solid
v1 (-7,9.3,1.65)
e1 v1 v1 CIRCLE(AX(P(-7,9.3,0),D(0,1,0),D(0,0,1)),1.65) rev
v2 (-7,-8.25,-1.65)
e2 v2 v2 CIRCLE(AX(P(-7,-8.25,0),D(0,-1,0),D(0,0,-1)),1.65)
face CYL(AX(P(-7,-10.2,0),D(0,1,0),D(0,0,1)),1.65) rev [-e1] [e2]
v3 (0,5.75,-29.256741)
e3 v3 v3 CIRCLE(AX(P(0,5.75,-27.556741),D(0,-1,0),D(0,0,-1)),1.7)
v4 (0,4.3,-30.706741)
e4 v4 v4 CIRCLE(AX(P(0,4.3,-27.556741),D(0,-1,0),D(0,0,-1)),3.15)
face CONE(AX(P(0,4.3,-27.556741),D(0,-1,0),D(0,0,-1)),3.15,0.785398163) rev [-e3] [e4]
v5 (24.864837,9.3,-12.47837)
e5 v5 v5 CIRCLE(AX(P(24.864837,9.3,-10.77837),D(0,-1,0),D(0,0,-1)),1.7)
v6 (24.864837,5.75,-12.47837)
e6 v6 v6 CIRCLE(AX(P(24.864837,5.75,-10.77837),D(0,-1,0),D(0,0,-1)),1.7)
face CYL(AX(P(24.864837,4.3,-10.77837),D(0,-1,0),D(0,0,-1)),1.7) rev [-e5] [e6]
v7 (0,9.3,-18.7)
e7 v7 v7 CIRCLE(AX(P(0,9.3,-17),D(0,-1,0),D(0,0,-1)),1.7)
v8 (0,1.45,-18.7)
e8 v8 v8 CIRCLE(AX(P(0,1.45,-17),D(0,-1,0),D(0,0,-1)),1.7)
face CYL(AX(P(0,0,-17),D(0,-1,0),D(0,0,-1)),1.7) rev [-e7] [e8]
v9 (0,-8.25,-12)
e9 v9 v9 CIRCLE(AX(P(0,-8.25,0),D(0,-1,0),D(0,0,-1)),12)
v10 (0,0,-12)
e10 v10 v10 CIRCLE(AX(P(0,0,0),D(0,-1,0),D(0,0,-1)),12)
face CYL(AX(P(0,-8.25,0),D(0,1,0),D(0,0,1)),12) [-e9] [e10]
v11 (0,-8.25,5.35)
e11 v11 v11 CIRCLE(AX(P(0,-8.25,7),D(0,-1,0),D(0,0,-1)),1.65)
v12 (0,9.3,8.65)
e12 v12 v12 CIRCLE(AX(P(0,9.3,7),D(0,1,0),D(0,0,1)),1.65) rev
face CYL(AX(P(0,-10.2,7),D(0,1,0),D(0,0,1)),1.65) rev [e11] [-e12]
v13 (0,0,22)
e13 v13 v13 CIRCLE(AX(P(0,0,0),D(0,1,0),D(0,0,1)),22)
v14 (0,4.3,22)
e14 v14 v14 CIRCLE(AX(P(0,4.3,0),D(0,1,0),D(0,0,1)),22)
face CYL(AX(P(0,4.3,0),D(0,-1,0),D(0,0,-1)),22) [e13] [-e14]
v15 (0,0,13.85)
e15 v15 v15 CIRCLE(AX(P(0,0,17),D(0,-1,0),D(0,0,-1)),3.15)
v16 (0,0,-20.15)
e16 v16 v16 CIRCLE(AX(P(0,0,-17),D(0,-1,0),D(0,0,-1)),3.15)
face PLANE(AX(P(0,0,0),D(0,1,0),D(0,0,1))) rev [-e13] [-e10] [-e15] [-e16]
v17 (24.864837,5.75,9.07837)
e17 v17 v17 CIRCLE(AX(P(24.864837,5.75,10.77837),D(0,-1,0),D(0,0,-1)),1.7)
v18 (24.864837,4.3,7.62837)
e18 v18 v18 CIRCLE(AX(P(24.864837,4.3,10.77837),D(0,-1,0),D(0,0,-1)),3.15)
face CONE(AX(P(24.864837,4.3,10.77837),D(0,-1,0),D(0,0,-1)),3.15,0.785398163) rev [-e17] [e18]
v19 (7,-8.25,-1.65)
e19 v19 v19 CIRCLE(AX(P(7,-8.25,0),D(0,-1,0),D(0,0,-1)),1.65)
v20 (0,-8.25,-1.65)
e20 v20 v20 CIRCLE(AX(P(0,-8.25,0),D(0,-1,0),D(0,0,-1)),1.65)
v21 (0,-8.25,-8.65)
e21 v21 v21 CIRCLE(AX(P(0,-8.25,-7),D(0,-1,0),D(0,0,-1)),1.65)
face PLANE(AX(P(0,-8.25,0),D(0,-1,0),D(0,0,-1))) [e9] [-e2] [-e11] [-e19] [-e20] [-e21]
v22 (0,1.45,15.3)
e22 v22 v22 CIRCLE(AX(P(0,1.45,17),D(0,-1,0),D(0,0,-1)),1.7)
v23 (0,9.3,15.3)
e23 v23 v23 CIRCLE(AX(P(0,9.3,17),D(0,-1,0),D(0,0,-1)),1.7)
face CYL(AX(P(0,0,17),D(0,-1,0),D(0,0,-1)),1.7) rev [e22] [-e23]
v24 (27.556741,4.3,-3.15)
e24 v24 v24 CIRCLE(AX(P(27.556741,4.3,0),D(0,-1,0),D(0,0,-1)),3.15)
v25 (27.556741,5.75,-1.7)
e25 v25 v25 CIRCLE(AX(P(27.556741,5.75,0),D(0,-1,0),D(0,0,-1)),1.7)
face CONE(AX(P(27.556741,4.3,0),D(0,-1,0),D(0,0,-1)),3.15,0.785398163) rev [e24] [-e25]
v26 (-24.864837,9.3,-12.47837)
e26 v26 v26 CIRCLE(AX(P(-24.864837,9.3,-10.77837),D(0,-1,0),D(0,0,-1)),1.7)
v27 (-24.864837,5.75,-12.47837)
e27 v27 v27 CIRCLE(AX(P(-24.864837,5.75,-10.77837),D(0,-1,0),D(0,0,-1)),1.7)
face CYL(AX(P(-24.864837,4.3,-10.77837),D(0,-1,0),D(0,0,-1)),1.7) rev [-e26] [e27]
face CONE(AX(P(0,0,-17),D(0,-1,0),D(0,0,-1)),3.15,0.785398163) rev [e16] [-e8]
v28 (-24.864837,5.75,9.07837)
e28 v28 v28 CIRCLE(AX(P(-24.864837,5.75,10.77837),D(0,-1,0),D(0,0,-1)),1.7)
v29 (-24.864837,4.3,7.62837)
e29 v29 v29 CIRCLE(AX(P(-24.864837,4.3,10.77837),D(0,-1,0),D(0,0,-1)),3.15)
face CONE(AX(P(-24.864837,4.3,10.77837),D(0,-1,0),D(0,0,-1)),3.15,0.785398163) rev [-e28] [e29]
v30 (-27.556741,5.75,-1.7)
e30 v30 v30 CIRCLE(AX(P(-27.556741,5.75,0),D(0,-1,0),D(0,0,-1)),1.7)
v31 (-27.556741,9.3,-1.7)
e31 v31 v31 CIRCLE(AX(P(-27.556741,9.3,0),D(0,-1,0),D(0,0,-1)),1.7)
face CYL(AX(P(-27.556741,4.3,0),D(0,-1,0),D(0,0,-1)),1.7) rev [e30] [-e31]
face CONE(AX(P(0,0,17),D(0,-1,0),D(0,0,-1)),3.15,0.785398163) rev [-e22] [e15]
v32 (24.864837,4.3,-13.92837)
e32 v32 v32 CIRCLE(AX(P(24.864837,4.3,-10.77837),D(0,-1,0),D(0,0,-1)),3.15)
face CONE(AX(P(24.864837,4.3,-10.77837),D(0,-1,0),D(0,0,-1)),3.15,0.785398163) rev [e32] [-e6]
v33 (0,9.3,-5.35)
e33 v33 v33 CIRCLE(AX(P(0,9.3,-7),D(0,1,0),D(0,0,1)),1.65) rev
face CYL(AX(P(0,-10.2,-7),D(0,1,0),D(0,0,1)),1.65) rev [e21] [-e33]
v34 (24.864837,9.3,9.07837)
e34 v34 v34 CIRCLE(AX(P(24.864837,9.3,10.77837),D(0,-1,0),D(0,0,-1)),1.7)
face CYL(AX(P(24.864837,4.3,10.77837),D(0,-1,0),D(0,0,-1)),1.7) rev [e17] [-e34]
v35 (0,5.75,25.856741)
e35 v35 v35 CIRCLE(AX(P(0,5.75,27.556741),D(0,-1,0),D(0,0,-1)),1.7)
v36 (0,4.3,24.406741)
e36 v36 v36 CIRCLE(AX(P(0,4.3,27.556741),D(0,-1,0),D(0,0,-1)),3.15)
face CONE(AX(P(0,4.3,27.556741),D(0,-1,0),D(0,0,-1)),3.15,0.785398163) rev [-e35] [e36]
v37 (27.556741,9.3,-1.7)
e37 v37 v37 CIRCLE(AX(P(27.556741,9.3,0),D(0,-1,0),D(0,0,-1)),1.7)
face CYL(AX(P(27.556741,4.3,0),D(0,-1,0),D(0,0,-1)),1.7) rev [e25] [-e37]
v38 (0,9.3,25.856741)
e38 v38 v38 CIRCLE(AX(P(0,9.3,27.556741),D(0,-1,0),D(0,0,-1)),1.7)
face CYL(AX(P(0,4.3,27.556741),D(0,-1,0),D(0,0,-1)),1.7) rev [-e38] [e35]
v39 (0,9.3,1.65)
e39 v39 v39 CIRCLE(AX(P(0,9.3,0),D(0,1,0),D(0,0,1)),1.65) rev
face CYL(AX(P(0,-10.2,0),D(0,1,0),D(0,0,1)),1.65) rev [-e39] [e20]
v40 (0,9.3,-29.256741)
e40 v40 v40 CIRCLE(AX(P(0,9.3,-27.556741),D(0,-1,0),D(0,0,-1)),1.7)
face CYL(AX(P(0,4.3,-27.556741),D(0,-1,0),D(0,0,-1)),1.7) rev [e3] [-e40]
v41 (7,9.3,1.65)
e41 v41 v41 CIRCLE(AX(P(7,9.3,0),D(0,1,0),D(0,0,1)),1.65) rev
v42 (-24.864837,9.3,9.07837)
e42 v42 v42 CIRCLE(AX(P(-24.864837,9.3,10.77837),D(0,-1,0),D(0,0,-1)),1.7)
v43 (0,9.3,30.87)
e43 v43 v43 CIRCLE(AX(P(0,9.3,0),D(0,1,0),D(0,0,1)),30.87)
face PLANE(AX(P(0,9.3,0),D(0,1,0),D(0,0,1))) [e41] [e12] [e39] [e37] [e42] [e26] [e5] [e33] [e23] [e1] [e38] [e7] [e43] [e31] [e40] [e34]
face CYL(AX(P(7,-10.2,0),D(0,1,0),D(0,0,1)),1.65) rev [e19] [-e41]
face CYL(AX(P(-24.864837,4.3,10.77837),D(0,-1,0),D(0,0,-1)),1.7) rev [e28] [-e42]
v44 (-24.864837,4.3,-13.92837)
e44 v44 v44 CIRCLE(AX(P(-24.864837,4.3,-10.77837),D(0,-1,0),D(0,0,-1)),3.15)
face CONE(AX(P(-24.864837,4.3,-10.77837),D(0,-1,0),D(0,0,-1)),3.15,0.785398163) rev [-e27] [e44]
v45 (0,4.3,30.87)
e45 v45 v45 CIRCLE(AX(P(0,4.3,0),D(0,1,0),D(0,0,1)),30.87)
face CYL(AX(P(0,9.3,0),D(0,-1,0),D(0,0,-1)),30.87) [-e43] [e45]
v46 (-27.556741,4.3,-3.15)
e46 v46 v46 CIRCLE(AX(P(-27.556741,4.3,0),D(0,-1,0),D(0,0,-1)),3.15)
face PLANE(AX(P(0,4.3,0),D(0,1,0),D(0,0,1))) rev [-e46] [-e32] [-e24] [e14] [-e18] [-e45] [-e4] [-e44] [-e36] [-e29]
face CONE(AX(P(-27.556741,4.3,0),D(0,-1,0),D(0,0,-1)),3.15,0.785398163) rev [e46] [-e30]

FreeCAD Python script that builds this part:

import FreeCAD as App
import Part
import Sketcher
Q = App.Units.Quantity

doc = App.newDocument("Part")
body = doc.addObject("PartDesign::Body", "Body")

sketch1 = body.newObject("Sketcher::SketchObject", "Sketch")
sketch1.AttachmentSupport = (doc.getObject("XZ_Plane"), [""])
sketch1.MapMode = "FlatFace"
sketch1.addGeometry(Part.Circle(App.Vector(0, 0, 0), App.Vector(0, 0, 1), 22), False)
sketch1.addConstraint([
    Sketcher.Constraint("Coincident", 0, 3, -1, 1),
    Sketcher.Constraint("Diameter", 0, Q("44 mm")),
])
pad1 = body.newObject("PartDesign::Pad", "Pad")
pad1.Profile = sketch1
pad1.Length = 4.3
pad1.Reversed = True

sketch2 = body.newObject("Sketcher::SketchObject", "Sketch001")
sketch2.AttachmentSupport = (doc.getObject("XZ_Plane"), [""])
sketch2.MapMode = "FlatFace"
sketch2.addGeometry(Part.Circle(App.Vector(0, 0, 0), App.Vector(0, 0, 1), 12), False)
sketch2.addConstraint([
    Sketcher.Constraint("Coincident", 0, 3, -1, 1),
    Sketcher.Constraint("Diameter", 0, Q("24 mm")),
])
pad2 = body.newObject("PartDesign::Pad", "Pad001")
pad2.Profile = sketch2
pad2.Length = 8.25

sketch3 = body.newObject("Sketcher::SketchObject", "Sketch002")
sketch3.AttachmentSupport = (doc.getObject("XZ_Plane"), [""])
sketch3.MapMode = "FlatFace"
sketch3.AttachmentOffset = App.Placement(App.Vector(0, 0, -4.3), App.Rotation())
sketch3.addGeometry([
    Part.Circle(App.Vector(0, 0, 0), App.Vector(0, 0, 1), 1.6),
    Part.Circle(App.Vector(0, -7, 0), App.Vector(0, 0, 1), 1.6),
    Part.Circle(App.Vector(7, 0, 0), App.Vector(0, 0, 1), 1.6),
    Part.Circle(App.Vector(0, 7, 0), App.Vector(0, 0, 1), 1.6),
    Part.Circle(App.Vector(-7, 0, 0), App.Vector(0, 0, 1), 1.6),
], False)
sketch3.addConstraint([
    Sketcher.Constraint("Coincident", 0, 3, -1, 1),
    Sketcher.Constraint("Equal", 0, 1),
    Sketcher.Constraint("Equal", 1, 2),
    Sketcher.Constraint("Equal", 2, 3),
    Sketcher.Constraint("Equal", 3, 4),
    Sketcher.Constraint("Symmetric", 1, 3, 3, 3, -1, 1),
    Sketcher.Constraint("Symmetric", 2, 3, 4, 3, -1, 1),
    Sketcher.Constraint("PointOnObject", 1, 3, -2),
    Sketcher.Constraint("PointOnObject", 2, 3, -1),
    Sketcher.Constraint("Diameter", 0, Q("3.3 mm")),
    Sketcher.Constraint("DistanceY", 1, 3, -1, 1, Q("7 mm")),
    Sketcher.Constraint("DistanceX", -1, 1, 2, 3, Q("7 mm")),
])
pocket1 = body.newObject("PartDesign::Pocket", "Pocket")
pocket1.Profile = sketch3
pocket1.Length = 14.5
pocket1.Reversed = True

sketch4 = body.newObject("Sketcher::SketchObject", "Sketch003")
sketch4.AttachmentSupport = (doc.getObject("XZ_Plane"), [""])
sketch4.MapMode = "FlatFace"
sketch4.AttachmentOffset = App.Placement(App.Vector(0, 0, -4.3), App.Rotation())
sketch4.addGeometry([
    Part.Circle(App.Vector(0, 0, 0), App.Vector(0, 0, 1), 30.9),
    Part.Circle(App.Vector(-7, 0, 0), App.Vector(0, 0, 1), 1.6),
    Part.Circle(App.Vector(0, 17, 0), App.Vector(0, 0, 1), 1.6),
    Part.Circle(App.Vector(0, 7, 0), App.Vector(0, 0, 1), 1.6),
    Part.Circle(App.Vector(0, 0, 0), App.Vector(0, 0, 1), 1.6),
    Part.Circle(App.Vector(7, 0, 0), App.Vector(0, 0, 1), 1.6),
    Part.Circle(App.Vector(0, -7, 0), App.Vector(0, 0, 1), 1.6),
    Part.Circle(App.Vector(0, -17, 0), App.Vector(0, 0, 1), 1.6),
], False)
sketch4.addConstraint([
    Sketcher.Constraint("Coincident", 0, 3, -1, 1),
    Sketcher.Constraint("Coincident", 4, 3, -1, 1),
    Sketcher.Constraint("Equal", 1, 2),
    Sketcher.Constraint("Equal", 2, 3),
    Sketcher.Constraint("Equal", 3, 4),
    Sketcher.Constraint("Equal", 4, 5),
    Sketcher.Constraint("Equal", 5, 6),
    Sketcher.Constraint("Equal", 6, 7),
    Sketcher.Constraint("Symmetric", 1, 3, 5, 3, -1, 1),
    Sketcher.Constraint("Symmetric", 3, 3, 6, 3, -1, 1),
    Sketcher.Constraint("Symmetric", 2, 3, 7, 3, -1, 1),
    Sketcher.Constraint("PointOnObject", 1, 3, -1),
    Sketcher.Constraint("PointOnObject", 2, 3, -2),
    Sketcher.Constraint("PointOnObject", 3, 3, -2),
    Sketcher.Constraint("Diameter", 1, Q("3.3 mm")),
    Sketcher.Constraint("Diameter", 0, Q("61.74 mm")),
    Sketcher.Constraint("DistanceX", 1, 3, -1, 1, Q("7 mm")),
    Sketcher.Constraint("DistanceY", -1, 1, 2, 3, Q("17 mm")),
    Sketcher.Constraint("DistanceY", -1, 1, 3, 3, Q("7 mm")),
])
pad3 = body.newObject("PartDesign::Pad", "Pad002")
pad3.Profile = sketch4
pad3.Length = 5
pad3.Reversed = True

sketch5 = body.newObject("Sketcher::SketchObject", "Sketch004")
sketch5.AttachmentSupport = (doc.getObject("XZ_Plane"), [""])
sketch5.MapMode = "FlatFace"
sketch5.AttachmentOffset = App.Placement(App.Vector(0, 0, -9.3), App.Rotation())
sketch5.addGeometry([
    Part.Circle(App.Vector(0, -27.6, 0), App.Vector(0, 0, 1), 1.6),
    Part.Circle(App.Vector(0, 27.6, 0), App.Vector(0, 0, 1), 1.6),
    Part.Circle(App.Vector(-24.9, 10.8, 0), App.Vector(0, 0, 1), 1.6),
    Part.Circle(App.Vector(-24.9, -10.8, 0), App.Vector(0, 0, 1), 1.6),
    Part.Circle(App.Vector(-27.6, 0, 0), App.Vector(0, 0, 1), 1.6),
    Part.Circle(App.Vector(27.6, 0, 0), App.Vector(0, 0, 1), 1.6),
    Part.Circle(App.Vector(24.9, 10.8, 0), App.Vector(0, 0, 1), 1.6),
    Part.Circle(App.Vector(24.9, -10.8, 0), App.Vector(0, 0, 1), 1.6),
], False)
sketch5.addConstraint([
    Sketcher.Constraint("Equal", 0, 1),
    Sketcher.Constraint("Equal", 1, 2),
    Sketcher.Constraint("Equal", 2, 3),
    Sketcher.Constraint("Equal", 3, 4),
    Sketcher.Constraint("Equal", 4, 5),
    Sketcher.Constraint("Equal", 5, 6),
    Sketcher.Constraint("Equal", 6, 7),
    Sketcher.Constraint("Symmetric", 0, 3, 1, 3, -1, 1),
    Sketcher.Constraint("Symmetric", 4, 3, 5, 3, -1, 1),
    Sketcher.Constraint("Symmetric", 3, 3, 6, 3, -1, 1),
    Sketcher.Constraint("Symmetric", 2, 3, 7, 3, -1, 1),
    Sketcher.Constraint("Symmetric", 2, 3, 6, 3, -2),
    Sketcher.Constraint("PointOnObject", 0, 3, -2),
    Sketcher.Constraint("PointOnObject", 4, 3, -1),
    Sketcher.Constraint("Diameter", 0, Q("3.3 mm")),
    Sketcher.Constraint("DistanceY", 0, 3, -1, 1, Q("27.556741 mm")),
    Sketcher.Constraint("DistanceY", -1, 1, 2, 3, Q("10.77837 mm")),
    Sketcher.Constraint("DistanceX", 4, 3, -1, 1, Q("27.556741 mm")),
    Sketcher.Constraint("DistanceX", 2, 3, 5, 3, Q("52.421578 mm")),
])
pocket2 = body.newObject("PartDesign::Pocket", "Pocket001")
pocket2.Profile = sketch5
pocket2.Length = 10
pocket2.Reversed = True

sketch6 = body.newObject("Sketcher::SketchObject", "Sketch005")
sketch6.AttachmentSupport = (doc.getObject("XZ_Plane"), [""])
sketch6.MapMode = "FlatFace"
sketch6.AttachmentOffset = App.Placement(App.Vector(0, 0, -4.3), App.Rotation())
sketch6.addGeometry([
    Part.Circle(App.Vector(0, 27.6, 0), App.Vector(0, 0, 1), 1.7),
    Part.Circle(App.Vector(24.9, 10.8, 0), App.Vector(0, 0, 1), 1.7),
    Part.Circle(App.Vector(27.6, 0, 0), App.Vector(0, 0, 1), 1.7),
    Part.Circle(App.Vector(24.9, -10.8, 0), App.Vector(0, 0, 1), 1.7),
    Part.Circle(App.Vector(0, -27.6, 0), App.Vector(0, 0, 1), 1.7),
    Part.Circle(App.Vector(-24.9, -10.8, 0), App.Vector(0, 0, 1), 1.7),
    Part.Circle(App.Vector(-27.6, 0, 0), App.Vector(0, 0, 1), 1.7),
    Part.Circle(App.Vector(-24.9, 10.8, 0), App.Vector(0, 0, 1), 1.7),
], False)
sketch6.addConstraint([
    Sketcher.Constraint("Equal", 0, 1),
    Sketcher.Constraint("Equal", 1, 2),
    Sketcher.Constraint("Equal", 2, 3),
    Sketcher.Constraint("Equal", 3, 4),
    Sketcher.Constraint("Equal", 4, 5),
    Sketcher.Constraint("Equal", 5, 6),
    Sketcher.Constraint("Equal", 6, 7),
    Sketcher.Constraint("Symmetric", 0, 3, 4, 3, -1, 1),
    Sketcher.Constraint("Symmetric", 1, 3, 5, 3, -1, 1),
    Sketcher.Constraint("Symmetric", 2, 3, 6, 3, -1, 1),
    Sketcher.Constraint("Symmetric", 3, 3, 7, 3, -1, 1),
    Sketcher.Constraint("Symmetric", 3, 3, 5, 3, -2),
    Sketcher.Constraint("PointOnObject", 0, 3, -2),
    Sketcher.Constraint("PointOnObject", 2, 3, -1),
    Sketcher.Constraint("Diameter", 0, Q("3.4 mm")),
    Sketcher.Constraint("DistanceY", -1, 1, 0, 3, Q("27.556741 mm")),
    Sketcher.Constraint("DistanceY", -1, 1, 1, 3, Q("10.77837 mm")),
    Sketcher.Constraint("DistanceX", -1, 1, 2, 3, Q("27.556741 mm")),
    Sketcher.Constraint("DistanceX", 5, 3, 2, 3, Q("52.421578 mm")),
])
doc.recompute()
hole = body.newObject("PartDesign::Hole", "Hole")
hole.Profile = sketch6
hole.ThreadType = "None"
hole.Diameter = 3.4
hole.DepthType = "ThroughAll"
hole.HoleCutType = "Countersink"
hole.HoleCutDiameter = 6.3
hole.HoleCutCountersinkAngle = 90

sketch7 = body.newObject("Sketcher::SketchObject", "Sketch006")
sketch7.AttachmentSupport = (doc.getObject("XZ_Plane"), [""])
sketch7.MapMode = "FlatFace"
sketch7.AttachmentOffset = App.Placement(App.Vector(0, 0, -9.3), App.Rotation())
sketch7.addGeometry([
    Part.Circle(App.Vector(0, 7, 0), App.Vector(0, 0, 1), 1.6),
    Part.Circle(App.Vector(0, -7, 0), App.Vector(0, 0, 1), 1.6),
    Part.Circle(App.Vector(0, 17, 0), App.Vector(0, 0, 1), 1.6),
    Part.Circle(App.Vector(0, -17, 0), App.Vector(0, 0, 1), 1.6),
], False)
sketch7.addConstraint([
    Sketcher.Constraint("Equal", 0, 1),
    Sketcher.Constraint("Equal", 1, 2),
    Sketcher.Constraint("Equal", 2, 3),
    Sketcher.Constraint("Symmetric", 0, 3, 1, 3, -1, 1),
    Sketcher.Constraint("Symmetric", 2, 3, 3, 3, -1, 1),
    Sketcher.Constraint("PointOnObject", 0, 3, -2),
    Sketcher.Constraint("PointOnObject", 2, 3, -2),
    Sketcher.Constraint("Diameter", 0, Q("3.3 mm")),
    Sketcher.Constraint("DistanceY", -1, 1, 0, 3, Q("7 mm")),
    Sketcher.Constraint("DistanceY", -1, 1, 2, 3, Q("17 mm")),
])
pocket3 = body.newObject("PartDesign::Pocket", "Pocket002")
pocket3.Profile = sketch7
pocket3.Length = 25
pocket3.Reversed = True

sketch8 = body.newObject("Sketcher::SketchObject", "Sketch007")
sketch8.AttachmentSupport = (doc.getObject("XZ_Plane"), [""])
sketch8.MapMode = "FlatFace"
sketch8.addGeometry([
    Part.Circle(App.Vector(0, 17, 0), App.Vector(0, 0, 1), 1.7),
    Part.Circle(App.Vector(0, -17, 0), App.Vector(0, 0, 1), 1.7),
], False)
sketch8.addConstraint([
    Sketcher.Constraint("Equal", 0, 1),
    Sketcher.Constraint("Symmetric", 0, 3, 1, 3, -1, 1),
    Sketcher.Constraint("PointOnObject", 0, 3, -2),
    Sketcher.Constraint("Diameter", 0, Q("3.4 mm")),
    Sketcher.Constraint("DistanceY", -1, 1, 0, 3, Q("17 mm")),
])
doc.recompute()
hole2 = body.newObject("PartDesign::Hole", "Hole001")
hole2.Profile = sketch8
hole2.ThreadType = "None"
hole2.Diameter = 3.4
hole2.DepthType = "ThroughAll"
hole2.HoleCutType = "Countersink"
hole2.HoleCutDiameter = 6.3
hole2.HoleCutCountersinkAngle = 90

doc.recompute()
